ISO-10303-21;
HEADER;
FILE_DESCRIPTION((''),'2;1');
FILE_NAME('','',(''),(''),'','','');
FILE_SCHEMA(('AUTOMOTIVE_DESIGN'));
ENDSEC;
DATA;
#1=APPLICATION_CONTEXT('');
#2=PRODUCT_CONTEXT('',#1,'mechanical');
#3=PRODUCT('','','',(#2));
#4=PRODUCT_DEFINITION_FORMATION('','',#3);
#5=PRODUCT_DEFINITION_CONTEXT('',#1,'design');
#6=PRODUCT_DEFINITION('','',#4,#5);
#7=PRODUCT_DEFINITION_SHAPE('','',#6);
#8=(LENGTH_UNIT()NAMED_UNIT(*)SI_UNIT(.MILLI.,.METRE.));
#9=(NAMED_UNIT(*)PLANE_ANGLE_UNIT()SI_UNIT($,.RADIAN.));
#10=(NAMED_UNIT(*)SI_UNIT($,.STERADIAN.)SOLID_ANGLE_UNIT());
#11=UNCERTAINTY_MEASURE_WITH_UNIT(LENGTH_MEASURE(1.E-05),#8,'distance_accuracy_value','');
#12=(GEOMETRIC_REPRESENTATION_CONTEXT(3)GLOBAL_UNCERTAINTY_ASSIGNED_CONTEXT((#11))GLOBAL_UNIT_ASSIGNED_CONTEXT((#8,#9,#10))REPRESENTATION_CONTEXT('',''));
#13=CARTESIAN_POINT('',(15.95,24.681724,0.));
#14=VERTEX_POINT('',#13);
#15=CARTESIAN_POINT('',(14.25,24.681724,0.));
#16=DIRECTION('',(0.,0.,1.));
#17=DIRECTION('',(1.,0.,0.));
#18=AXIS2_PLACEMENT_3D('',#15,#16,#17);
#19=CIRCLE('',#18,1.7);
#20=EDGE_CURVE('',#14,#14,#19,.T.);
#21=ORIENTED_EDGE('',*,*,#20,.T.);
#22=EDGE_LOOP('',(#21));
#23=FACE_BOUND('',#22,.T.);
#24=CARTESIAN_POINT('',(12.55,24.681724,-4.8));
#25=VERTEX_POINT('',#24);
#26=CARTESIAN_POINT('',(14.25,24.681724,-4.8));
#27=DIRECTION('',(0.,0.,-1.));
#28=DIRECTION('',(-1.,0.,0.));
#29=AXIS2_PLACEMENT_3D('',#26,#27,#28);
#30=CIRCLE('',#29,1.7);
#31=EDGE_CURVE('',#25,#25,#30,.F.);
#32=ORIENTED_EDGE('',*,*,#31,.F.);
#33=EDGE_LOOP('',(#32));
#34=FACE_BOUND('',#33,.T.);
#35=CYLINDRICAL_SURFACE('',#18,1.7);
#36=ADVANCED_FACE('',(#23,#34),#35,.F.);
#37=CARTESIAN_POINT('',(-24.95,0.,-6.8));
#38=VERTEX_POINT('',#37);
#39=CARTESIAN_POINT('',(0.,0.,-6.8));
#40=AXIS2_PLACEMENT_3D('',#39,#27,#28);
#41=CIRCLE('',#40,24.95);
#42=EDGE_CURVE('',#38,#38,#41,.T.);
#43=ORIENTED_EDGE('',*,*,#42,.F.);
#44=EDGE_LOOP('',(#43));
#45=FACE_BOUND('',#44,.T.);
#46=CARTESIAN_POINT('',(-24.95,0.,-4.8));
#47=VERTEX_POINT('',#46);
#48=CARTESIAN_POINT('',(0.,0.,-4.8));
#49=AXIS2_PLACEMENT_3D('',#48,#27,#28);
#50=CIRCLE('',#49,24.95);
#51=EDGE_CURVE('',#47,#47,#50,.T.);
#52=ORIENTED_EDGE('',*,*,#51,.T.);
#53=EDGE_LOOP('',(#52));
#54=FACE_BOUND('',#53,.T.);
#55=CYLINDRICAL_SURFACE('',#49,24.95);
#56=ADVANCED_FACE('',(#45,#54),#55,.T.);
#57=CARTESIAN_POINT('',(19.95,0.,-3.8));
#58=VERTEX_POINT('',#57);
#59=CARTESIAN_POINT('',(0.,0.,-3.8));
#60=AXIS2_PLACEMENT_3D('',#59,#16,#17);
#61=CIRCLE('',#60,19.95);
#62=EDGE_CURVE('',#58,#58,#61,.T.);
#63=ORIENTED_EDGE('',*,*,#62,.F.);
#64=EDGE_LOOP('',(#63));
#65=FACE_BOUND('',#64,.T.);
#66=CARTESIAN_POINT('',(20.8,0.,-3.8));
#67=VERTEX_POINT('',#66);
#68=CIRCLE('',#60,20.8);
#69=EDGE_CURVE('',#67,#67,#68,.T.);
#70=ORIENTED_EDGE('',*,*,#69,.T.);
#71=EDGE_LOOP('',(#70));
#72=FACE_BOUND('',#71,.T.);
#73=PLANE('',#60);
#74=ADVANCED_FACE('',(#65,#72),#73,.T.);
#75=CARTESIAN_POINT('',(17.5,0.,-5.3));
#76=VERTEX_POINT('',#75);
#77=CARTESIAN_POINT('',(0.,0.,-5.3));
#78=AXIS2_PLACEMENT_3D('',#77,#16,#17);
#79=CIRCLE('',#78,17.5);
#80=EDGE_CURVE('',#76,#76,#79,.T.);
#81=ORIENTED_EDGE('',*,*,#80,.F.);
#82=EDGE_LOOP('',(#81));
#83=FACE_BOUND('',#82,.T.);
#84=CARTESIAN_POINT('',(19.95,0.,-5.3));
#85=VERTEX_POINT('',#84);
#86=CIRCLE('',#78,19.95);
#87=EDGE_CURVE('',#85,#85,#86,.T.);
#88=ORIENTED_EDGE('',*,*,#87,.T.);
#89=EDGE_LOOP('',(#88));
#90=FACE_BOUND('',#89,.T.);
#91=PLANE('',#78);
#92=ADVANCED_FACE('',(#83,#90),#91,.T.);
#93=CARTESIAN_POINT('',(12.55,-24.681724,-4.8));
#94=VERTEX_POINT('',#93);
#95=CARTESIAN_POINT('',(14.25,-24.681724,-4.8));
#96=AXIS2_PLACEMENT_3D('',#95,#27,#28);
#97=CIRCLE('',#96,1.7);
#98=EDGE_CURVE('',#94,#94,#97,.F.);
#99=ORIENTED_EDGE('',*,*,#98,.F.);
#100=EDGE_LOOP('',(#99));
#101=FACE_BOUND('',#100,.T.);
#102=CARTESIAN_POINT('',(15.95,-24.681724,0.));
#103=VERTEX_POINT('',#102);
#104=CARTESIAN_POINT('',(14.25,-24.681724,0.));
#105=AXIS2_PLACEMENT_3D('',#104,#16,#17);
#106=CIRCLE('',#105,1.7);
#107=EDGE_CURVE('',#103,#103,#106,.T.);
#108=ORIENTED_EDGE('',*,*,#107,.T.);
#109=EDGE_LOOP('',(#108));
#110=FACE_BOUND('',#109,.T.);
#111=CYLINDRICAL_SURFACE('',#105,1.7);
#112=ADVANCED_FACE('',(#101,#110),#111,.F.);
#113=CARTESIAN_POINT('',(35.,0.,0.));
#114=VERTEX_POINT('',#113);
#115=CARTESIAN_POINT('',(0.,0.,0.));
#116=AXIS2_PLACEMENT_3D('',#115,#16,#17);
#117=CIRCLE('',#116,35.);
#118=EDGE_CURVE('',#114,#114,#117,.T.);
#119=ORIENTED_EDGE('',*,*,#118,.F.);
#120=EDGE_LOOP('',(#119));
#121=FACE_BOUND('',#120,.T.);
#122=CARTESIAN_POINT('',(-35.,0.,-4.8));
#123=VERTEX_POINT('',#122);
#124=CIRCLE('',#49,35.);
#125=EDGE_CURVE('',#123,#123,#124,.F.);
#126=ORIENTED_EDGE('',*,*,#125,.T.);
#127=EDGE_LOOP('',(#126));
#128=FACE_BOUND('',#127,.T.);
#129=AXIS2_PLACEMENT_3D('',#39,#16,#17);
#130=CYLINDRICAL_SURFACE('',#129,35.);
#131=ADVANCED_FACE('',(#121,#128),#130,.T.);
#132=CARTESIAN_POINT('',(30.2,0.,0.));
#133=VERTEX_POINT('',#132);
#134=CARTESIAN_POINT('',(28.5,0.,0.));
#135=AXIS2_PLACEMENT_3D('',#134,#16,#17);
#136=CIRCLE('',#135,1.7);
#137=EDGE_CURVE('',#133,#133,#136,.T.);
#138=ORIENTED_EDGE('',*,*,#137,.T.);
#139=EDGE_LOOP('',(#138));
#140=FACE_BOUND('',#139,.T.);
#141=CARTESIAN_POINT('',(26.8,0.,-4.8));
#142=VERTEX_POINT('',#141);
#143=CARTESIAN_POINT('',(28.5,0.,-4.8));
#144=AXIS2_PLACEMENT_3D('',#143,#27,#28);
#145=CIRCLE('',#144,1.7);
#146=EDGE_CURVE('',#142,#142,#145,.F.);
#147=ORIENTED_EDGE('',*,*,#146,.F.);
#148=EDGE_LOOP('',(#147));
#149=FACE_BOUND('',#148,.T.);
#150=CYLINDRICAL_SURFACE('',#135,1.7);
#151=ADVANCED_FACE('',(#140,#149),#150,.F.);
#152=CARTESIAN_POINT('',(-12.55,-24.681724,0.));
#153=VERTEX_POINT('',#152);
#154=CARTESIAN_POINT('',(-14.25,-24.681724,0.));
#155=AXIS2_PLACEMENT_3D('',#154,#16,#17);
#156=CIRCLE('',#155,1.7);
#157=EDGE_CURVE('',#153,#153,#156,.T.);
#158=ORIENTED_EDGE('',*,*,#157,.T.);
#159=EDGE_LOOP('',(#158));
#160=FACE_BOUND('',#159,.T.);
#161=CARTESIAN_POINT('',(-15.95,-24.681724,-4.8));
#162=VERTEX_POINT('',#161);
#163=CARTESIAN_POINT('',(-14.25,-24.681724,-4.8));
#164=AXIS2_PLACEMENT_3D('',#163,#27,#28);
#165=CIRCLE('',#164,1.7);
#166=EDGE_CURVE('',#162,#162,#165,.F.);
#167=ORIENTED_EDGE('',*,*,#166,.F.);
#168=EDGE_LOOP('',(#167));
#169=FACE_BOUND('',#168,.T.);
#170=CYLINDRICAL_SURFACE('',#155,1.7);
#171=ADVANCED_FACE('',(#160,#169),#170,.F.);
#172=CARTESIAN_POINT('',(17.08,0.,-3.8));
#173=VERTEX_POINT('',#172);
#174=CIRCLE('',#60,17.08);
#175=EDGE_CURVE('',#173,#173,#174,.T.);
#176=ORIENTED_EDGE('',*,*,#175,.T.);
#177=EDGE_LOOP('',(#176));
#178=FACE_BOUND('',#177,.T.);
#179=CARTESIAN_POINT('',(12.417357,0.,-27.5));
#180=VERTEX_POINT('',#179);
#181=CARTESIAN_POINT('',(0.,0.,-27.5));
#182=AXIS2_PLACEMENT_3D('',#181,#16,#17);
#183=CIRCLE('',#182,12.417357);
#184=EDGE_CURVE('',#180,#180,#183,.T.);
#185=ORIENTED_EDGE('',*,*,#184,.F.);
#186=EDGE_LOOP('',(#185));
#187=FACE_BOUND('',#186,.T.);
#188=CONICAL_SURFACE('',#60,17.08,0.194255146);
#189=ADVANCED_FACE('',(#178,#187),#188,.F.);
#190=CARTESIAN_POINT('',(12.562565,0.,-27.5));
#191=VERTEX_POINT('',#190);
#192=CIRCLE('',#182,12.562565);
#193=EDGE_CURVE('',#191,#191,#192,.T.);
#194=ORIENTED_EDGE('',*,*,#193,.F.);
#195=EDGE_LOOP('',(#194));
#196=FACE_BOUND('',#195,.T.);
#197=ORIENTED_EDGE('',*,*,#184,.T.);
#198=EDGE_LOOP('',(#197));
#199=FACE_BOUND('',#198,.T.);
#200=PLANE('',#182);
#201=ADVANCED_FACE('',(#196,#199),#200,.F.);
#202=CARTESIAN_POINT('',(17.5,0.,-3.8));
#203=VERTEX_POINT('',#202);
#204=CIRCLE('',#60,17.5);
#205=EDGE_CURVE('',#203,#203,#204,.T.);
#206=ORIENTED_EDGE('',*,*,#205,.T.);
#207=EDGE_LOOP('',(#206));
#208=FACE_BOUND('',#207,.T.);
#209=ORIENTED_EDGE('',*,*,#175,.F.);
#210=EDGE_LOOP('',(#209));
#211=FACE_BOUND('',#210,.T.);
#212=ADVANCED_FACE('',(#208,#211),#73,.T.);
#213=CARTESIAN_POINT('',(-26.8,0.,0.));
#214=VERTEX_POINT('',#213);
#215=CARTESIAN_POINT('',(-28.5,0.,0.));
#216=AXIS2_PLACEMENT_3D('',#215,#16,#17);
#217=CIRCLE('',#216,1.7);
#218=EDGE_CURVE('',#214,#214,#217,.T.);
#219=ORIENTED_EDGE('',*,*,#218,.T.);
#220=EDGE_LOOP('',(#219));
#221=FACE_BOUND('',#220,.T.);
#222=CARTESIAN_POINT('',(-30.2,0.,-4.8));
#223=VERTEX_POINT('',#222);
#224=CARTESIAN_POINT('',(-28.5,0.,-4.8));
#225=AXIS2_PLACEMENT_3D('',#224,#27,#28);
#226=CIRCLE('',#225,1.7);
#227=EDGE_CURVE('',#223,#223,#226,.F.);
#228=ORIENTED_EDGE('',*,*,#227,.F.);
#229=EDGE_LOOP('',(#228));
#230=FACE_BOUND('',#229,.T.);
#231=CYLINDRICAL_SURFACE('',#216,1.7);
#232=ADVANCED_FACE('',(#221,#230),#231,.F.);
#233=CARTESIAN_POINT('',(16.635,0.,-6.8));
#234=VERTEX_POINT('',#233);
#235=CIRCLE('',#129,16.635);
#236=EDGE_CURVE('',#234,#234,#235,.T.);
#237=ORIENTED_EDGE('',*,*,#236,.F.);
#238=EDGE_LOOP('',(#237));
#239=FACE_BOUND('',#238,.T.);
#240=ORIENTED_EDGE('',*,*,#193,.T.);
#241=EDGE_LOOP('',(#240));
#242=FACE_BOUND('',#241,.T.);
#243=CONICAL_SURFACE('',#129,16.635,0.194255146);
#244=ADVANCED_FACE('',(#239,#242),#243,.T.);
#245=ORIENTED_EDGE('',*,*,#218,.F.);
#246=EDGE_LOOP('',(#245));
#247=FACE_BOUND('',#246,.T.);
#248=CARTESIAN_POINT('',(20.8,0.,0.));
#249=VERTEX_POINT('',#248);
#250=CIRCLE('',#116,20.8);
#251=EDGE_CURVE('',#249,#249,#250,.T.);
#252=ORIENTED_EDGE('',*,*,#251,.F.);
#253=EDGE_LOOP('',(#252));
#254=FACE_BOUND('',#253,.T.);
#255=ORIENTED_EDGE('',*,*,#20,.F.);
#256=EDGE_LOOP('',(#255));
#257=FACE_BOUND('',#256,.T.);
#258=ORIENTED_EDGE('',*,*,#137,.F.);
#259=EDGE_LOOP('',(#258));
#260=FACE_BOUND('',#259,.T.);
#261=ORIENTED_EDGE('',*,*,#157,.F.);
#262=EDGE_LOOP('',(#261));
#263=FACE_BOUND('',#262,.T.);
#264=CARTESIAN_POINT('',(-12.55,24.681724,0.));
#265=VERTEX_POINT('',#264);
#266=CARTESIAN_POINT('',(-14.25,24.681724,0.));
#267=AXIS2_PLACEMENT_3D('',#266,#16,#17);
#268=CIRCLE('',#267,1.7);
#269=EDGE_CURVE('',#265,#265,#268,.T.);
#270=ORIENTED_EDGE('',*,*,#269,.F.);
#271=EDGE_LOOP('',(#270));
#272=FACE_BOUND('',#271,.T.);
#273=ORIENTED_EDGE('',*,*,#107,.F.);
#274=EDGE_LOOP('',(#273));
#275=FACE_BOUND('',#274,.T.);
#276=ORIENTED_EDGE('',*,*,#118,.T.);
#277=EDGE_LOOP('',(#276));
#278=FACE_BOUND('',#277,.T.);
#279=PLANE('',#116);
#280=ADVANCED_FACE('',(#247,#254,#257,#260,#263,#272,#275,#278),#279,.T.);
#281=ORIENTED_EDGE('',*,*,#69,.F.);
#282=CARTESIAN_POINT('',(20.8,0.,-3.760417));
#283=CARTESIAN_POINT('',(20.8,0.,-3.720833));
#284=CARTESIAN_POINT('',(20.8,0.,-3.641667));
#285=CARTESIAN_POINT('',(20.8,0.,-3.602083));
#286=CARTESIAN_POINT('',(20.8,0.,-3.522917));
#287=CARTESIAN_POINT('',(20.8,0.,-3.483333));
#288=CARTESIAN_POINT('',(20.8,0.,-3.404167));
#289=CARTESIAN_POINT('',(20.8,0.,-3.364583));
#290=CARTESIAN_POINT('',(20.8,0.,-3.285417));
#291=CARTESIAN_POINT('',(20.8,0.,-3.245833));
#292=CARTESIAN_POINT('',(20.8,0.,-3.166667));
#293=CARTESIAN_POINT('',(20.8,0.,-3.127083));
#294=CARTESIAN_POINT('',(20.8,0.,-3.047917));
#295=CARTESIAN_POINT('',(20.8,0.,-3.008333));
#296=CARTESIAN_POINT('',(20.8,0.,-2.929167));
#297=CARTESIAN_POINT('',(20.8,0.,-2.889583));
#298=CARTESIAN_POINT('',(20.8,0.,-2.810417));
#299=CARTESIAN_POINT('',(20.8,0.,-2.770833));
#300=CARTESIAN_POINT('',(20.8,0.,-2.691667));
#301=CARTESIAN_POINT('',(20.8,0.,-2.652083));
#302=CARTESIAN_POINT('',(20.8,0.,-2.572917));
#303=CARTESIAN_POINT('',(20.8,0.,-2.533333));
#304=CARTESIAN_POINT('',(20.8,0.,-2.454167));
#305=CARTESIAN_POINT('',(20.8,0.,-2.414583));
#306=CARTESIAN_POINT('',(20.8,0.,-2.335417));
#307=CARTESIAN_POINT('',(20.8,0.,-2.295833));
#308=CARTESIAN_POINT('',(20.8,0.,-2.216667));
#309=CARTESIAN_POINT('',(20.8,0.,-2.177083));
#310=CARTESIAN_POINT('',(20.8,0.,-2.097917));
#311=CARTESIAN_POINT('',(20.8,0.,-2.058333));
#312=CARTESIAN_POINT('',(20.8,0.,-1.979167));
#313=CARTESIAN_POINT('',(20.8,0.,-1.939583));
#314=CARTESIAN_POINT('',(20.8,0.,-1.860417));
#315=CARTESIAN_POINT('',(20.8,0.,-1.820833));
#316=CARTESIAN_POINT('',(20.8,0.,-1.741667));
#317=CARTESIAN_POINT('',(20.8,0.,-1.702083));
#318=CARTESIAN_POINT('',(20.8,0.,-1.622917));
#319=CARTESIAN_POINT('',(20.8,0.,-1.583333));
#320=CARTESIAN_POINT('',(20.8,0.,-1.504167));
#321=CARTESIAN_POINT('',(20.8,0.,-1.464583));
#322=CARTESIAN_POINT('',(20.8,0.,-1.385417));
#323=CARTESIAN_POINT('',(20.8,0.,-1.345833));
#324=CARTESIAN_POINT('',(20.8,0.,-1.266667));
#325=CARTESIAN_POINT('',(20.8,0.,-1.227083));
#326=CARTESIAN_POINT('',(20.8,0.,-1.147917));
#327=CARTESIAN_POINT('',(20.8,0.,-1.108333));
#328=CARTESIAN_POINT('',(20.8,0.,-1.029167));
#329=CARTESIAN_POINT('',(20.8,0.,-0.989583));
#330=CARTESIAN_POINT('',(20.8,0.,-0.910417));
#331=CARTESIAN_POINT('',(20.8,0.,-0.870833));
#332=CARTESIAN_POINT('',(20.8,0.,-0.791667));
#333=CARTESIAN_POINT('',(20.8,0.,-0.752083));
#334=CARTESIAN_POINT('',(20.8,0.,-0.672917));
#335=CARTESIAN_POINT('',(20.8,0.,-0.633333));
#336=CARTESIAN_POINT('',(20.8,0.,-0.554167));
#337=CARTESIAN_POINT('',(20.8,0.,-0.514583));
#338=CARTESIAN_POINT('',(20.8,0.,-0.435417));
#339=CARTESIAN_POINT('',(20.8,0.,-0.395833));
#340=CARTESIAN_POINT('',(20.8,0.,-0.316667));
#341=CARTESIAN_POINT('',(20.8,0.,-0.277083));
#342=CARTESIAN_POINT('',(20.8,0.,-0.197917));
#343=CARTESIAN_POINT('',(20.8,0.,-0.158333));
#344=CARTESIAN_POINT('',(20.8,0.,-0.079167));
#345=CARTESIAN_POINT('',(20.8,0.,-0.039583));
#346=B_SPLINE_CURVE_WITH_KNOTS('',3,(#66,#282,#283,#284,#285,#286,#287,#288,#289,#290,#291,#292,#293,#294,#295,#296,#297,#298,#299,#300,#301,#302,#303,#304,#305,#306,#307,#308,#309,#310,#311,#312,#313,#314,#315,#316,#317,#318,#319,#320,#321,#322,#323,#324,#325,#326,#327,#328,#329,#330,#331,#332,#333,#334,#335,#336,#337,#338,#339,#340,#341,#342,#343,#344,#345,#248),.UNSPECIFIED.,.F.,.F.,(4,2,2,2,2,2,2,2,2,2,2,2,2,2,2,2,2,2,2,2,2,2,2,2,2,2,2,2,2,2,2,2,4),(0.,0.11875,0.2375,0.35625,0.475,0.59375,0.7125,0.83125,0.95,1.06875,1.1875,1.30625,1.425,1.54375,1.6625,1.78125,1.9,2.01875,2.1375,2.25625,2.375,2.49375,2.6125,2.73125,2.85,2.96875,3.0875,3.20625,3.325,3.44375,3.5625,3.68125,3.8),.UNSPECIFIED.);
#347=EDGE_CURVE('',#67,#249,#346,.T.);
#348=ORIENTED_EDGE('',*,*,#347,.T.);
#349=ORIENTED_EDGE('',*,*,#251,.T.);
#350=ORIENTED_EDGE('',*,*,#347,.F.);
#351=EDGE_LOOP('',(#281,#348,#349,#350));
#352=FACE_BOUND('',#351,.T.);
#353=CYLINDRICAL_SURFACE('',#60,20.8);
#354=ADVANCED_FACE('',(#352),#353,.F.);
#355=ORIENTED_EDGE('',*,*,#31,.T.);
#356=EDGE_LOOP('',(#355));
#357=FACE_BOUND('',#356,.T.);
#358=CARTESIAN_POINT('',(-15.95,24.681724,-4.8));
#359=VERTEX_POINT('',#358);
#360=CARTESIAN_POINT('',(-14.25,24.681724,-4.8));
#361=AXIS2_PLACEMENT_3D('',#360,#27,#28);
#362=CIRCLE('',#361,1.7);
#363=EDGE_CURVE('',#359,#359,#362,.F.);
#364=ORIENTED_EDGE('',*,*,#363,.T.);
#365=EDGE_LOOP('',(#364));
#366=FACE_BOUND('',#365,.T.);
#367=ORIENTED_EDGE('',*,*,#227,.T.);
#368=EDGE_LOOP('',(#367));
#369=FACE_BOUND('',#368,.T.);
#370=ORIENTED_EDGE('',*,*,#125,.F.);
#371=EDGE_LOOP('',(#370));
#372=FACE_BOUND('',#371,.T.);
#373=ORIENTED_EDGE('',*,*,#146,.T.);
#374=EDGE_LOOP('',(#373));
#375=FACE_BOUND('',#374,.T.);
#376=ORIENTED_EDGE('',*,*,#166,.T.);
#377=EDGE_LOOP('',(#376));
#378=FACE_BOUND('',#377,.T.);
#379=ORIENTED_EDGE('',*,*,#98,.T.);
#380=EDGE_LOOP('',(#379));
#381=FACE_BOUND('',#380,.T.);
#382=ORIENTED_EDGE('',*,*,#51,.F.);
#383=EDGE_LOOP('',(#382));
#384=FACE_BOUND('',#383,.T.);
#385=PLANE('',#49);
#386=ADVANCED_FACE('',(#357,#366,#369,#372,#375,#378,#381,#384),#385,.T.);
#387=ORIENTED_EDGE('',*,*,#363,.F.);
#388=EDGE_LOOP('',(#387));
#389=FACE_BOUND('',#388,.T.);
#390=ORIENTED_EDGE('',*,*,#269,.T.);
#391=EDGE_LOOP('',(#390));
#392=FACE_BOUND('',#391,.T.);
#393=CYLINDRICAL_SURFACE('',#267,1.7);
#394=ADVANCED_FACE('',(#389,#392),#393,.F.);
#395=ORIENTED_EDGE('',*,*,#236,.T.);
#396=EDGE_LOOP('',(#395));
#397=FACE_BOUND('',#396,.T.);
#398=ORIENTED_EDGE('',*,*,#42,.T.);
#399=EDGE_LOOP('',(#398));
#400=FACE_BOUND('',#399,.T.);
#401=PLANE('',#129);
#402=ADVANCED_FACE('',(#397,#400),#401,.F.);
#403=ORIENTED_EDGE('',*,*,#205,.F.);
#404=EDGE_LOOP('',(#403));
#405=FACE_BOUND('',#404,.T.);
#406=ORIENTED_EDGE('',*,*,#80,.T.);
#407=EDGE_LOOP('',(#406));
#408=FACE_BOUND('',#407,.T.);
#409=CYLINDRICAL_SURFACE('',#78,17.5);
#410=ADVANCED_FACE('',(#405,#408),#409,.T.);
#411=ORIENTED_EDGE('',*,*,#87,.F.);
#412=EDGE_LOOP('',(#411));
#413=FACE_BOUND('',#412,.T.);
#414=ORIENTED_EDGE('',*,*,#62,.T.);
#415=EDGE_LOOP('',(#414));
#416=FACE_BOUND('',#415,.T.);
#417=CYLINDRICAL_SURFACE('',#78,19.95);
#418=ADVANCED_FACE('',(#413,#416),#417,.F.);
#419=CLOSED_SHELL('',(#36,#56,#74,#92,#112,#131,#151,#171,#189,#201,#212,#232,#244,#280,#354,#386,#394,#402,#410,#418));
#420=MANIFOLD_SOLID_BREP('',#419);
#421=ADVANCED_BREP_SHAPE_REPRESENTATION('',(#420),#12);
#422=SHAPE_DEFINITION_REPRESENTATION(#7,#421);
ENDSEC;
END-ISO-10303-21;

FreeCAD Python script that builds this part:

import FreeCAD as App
import Part
import Sketcher
Q = App.Units.Quantity


def faces_at(feature, points):
    """Names of the faces that lie closest to the given points."""
    faces = feature.Shape.Faces
    near = lambda p: min(range(len(faces)), key=lambda i: faces[i].distToShape(Part.Vertex(*p))[0])
    return sorted({f"Face{near(p) + 1}" for p in points})

doc = App.newDocument("Part")
body = doc.addObject("PartDesign::Body", "Body")

# Sketch on XY plane
sketch1 = body.newObject("Sketcher::SketchObject", "Sketch")
sketch1.AttachmentSupport = (doc.getObject("XY_Plane"), [""])
sketch1.MapMode = "FlatFace"
sketch1.addGeometry(Part.Circle(App.Vector(0, 0, 0), App.Vector(0, 0, 1), 35), False)
sketch1.addConstraint([
    Sketcher.Constraint("Coincident", 0, 3, -1, 1),
    Sketcher.Constraint("Diameter", 0, Q("70 mm")),
])
pad1 = body.newObject("PartDesign::Pad", "Pad")
pad1.Profile = sketch1
pad1.Length = 6.8
pad1.Reversed = True

# Sketch on XY plane
sketch2 = body.newObject("Sketcher::SketchObject", "Sketch001")
sketch2.AttachmentSupport = (doc.getObject("XY_Plane"), [""])
sketch2.MapMode = "FlatFace"
sketch2.addGeometry(Part.Circle(App.Vector(-28.5, 0, 0), App.Vector(0, 0, 1), 1.7), False)
sketch2.addConstraint([
    Sketcher.Constraint("PointOnObject", 0, 3, -1),
    Sketcher.Constraint("Diameter", 0, Q("3.4 mm")),
    Sketcher.Constraint("DistanceX", 0, 3, -1, 1, Q("28.5 mm")),
])
doc.recompute()
hole = body.newObject("PartDesign::Hole", "Hole")
hole.Profile = sketch2
hole.ThreadType = "None"
hole.Diameter = 3.4
hole.DepthType = "ThroughAll"
doc.recompute()

polarpattern = body.newObject("PartDesign::PolarPattern", "PolarPattern")
polarpattern.Originals = [hole]
polarpattern.Axis = (doc.getObject("Z_Axis"), [""])
polarpattern.Angle = 360
polarpattern.Occurrences = 6
body.Tip = polarpattern

# Sketch on XY plane
sketch3 = body.newObject("Sketcher::SketchObject", "Sketch002")
sketch3.AttachmentSupport = (doc.getObject("XY_Plane"), [""])
sketch3.MapMode = "FlatFace"
sketch3.addGeometry(Part.Circle(App.Vector(0, 0, 0), App.Vector(0, 0, 1), 21), False)
sketch3.addConstraint([
    Sketcher.Constraint("Coincident", 0, 3, -1, 1),
    Sketcher.Constraint("Diameter", 0, Q("41.6 mm")),
])
pocket1 = body.newObject("PartDesign::Pocket", "Pocket")
pocket1.Profile = sketch3
pocket1.Length = 3.8

# Sketch on XY plane
sketch4 = body.newObject("Sketcher::SketchObject", "Sketch003")
sketch4.AttachmentSupport = (doc.getObject("XY_Plane"), [""])
sketch4.MapMode = "FlatFace"
sketch4.AttachmentOffset = App.Placement(App.Vector(0, 0, -3.8), App.Rotation())
sketch4.addGeometry([
    Part.Circle(App.Vector(0, 0, 0), App.Vector(0, 0, 1), 20),
    Part.Circle(App.Vector(0, 0, 0), App.Vector(0, 0, 1), 18),
], False)
sketch4.addConstraint([
    Sketcher.Constraint("Coincident", 0, 3, -1, 1),
    Sketcher.Constraint("Coincident", 1, 3, -1, 1),
    Sketcher.Constraint("Diameter", 1, Q("35 mm")),
    Sketcher.Constraint("Diameter", 0, Q("39.9 mm")),
])
pocket2 = body.newObject("PartDesign::Pocket", "Pocket001")
pocket2.Profile = sketch4
pocket2.Length = 1.5

# Sketch on XY plane
sketch5 = body.newObject("Sketcher::SketchObject", "Sketch004")
sketch5.AttachmentSupport = (doc.getObject("XY_Plane"), [""])
sketch5.MapMode = "FlatFace"
sketch5.AttachmentOffset = App.Placement(App.Vector(0, 0, -6.8), App.Rotation())
sketch5.addGeometry([
    Part.Circle(App.Vector(0, 0, 0), App.Vector(0, 0, 1), 43),
    Part.Circle(App.Vector(0, 0, 0), App.Vector(0, 0, 1), 25),
], False)
sketch5.addConstraint([
    Sketcher.Constraint("Coincident", 0, 3, -1, 1),
    Sketcher.Constraint("Coincident", 1, 3, -1, 1),
    Sketcher.Constraint("Diameter", 1, Q("49.9 mm")),
    Sketcher.Constraint("Diameter", 0, Q("85.672946 mm")),
])
pocket3 = body.newObject("PartDesign::Pocket", "Pocket002")
pocket3.Profile = sketch5
pocket3.Length = 2
pocket3.Reversed = True
body2 = doc.addObject("PartDesign::Body", "Body001")

# Sketch on XY plane
sketch6 = body2.newObject("Sketcher::SketchObject", "Sketch005")
sketch6.AttachmentSupport = (doc.getObject("XY_Plane001"), [""])
sketch6.MapMode = "FlatFace"
sketch6.AttachmentOffset = App.Placement(App.Vector(0, 0, -6.8), App.Rotation())
sketch6.addGeometry(Part.Circle(App.Vector(0, 0, 0), App.Vector(0, 0, 1), 17), False)
sketch6.addConstraint([
    Sketcher.Constraint("Coincident", 0, 3, -1, 1),
    Sketcher.Constraint("Diameter", 0, Q("33.27 mm")),
])
pad2 = body2.newObject("PartDesign::Pad", "Pad001")
pad2.Profile = sketch6
pad2.Length = 20.7
pad2.Reversed = True
doc.recompute()

datumplane = body2.newObject("PartDesign::Plane", "DatumPlane")
datumplane.AttachmentSupport = (doc.getObject("XY_Plane001"), [""])
datumplane.MapMode = "FlatFace"
datumplane.AttachmentOffset = App.Placement(App.Vector(0, 0, -6.8), App.Rotation())
draft = body2.newObject("PartDesign::Draft", "Draft")
draft.Base = (pad2, faces_at(pad2, [(-16.635, 0, -17.15)]))
draft.NeutralPlane = (datumplane, [""])
draft.Angle = 11.13
draft.Reversed = True
doc.recompute()

boolean = body.newObject("PartDesign::Boolean", "Boolean")
boolean.Type = "Fuse"
boolean.addObjects([body2])
body3 = doc.addObject("PartDesign::Body", "Body002")

# Sketch on XY plane
sketch7 = body3.newObject("Sketcher::SketchObject", "Sketch006")
sketch7.AttachmentSupport = (doc.getObject("XY_Plane002"), [""])
sketch7.MapMode = "FlatFace"
sketch7.AttachmentOffset = App.Placement(App.Vector(0, 0, -3.8), App.Rotation())
sketch7.addGeometry(Part.Circle(App.Vector(0, 0, 0), App.Vector(0, 0, 1), 17), False)
sketch7.addConstraint([
    Sketcher.Constraint("Coincident", 0, 3, -1, 1),
    Sketcher.Constraint("Diameter", 0, Q("34.16 mm")),
])
pad3 = body3.newObject("PartDesign::Pad", "Pad002")
pad3.Profile = sketch7
pad3.Length = 28
pad3.Reversed = True
doc.recompute()

datumplane2 = body3.newObject("PartDesign::Plane", "DatumPlane001")
datumplane2.AttachmentSupport = (doc.getObject("XY_Plane002"), [""])
datumplane2.MapMode = "FlatFace"
datumplane2.AttachmentOffset = App.Placement(App.Vector(0, 0, -3.8), App.Rotation())
draft2 = body3.newObject("PartDesign::Draft", "Draft001")
draft2.Base = (pad3, faces_at(pad3, [(-17.08, 0, -17.8)]))
draft2.NeutralPlane = (datumplane2, [""])
draft2.Angle = 11.13
draft2.Reversed = True
doc.recompute()

boolean2 = body.newObject("PartDesign::Boolean", "Boolean001")
boolean2.Type = "Cut"
boolean2.addObjects([body3])

doc.recompute()
